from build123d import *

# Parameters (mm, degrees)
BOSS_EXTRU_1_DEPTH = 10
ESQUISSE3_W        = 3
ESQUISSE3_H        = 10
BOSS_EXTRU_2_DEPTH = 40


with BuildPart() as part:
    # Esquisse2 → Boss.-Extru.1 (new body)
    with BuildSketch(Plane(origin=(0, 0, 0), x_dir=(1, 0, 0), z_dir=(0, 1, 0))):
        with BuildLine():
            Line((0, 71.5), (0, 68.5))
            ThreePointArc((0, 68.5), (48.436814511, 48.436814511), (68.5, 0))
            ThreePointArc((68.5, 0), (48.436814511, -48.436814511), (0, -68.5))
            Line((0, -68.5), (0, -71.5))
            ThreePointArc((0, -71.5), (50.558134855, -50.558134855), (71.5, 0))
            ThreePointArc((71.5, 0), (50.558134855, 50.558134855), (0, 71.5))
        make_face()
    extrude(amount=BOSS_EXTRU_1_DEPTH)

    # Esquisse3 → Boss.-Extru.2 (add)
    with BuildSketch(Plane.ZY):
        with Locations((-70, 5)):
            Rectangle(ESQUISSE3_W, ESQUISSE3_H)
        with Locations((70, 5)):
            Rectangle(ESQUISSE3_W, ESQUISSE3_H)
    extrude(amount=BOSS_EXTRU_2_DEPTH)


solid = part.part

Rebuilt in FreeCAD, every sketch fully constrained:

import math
import FreeCAD as App
import Part
import Sketcher

doc = App.newDocument("Part")
body = doc.addObject("PartDesign::Body", "Body")

sketch1 = body.newObject("Sketcher::SketchObject", "Sketch")
sketch1.AttachmentSupport = (doc.getObject("XZ_Plane"), [""])
sketch1.MapMode = "FlatFace"
sketch1.addGeometry([
    Part.LineSegment(App.Vector(0, -71.5, 0), App.Vector(0, -68.5, 0)),
    Part.ArcOfCircle(Part.Circle(App.Vector(0, 0, 0), App.Vector(0, 0, 1), 68.5), math.radians(-90), math.radians(0)),
    Part.ArcOfCircle(Part.Circle(App.Vector(0, 0, 0), App.Vector(0, 0, 1), 68.5), math.radians(0), math.radians(90)),
    Part.LineSegment(App.Vector(0, 68.5, 0), App.Vector(0, 71.5, 0)),
    Part.ArcOfCircle(Part.Circle(App.Vector(0, 0, 0), App.Vector(0, 0, 1), 71.5), math.radians(0), math.radians(90)),
    Part.ArcOfCircle(Part.Circle(App.Vector(0, 0, 0), App.Vector(0, 0, 1), 71.5), math.radians(-90), math.radians(0)),
], False)
sketch1.addConstraint([
    Sketcher.Constraint("Coincident", 0, 2, 1, 1),
    Sketcher.Constraint("Tangent", 1, 2, 2, 1),
    Sketcher.Constraint("Coincident", 2, 2, 3, 1),
    Sketcher.Constraint("Coincident", 3, 2, 4, 2),
    Sketcher.Constraint("Tangent", 4, 1, 5, 2),
    Sketcher.Constraint("Coincident", 5, 1, 0, 1),
    Sketcher.Constraint("Vertical", 0),
    Sketcher.Constraint("Vertical", 3),
    Sketcher.Constraint("Coincident", 1, 3, -1, 1),
    Sketcher.Constraint("Coincident", 4, 3, -1, 1),
    Sketcher.Constraint("Equal", 1, 2),
    Sketcher.Constraint("Equal", 4, 5),
    Sketcher.Constraint("PointOnObject", 0, 2, -2),
    Sketcher.Constraint("PointOnObject", 1, 2, -1),
    Sketcher.Constraint("PointOnObject", 2, 2, -2),
    Sketcher.Constraint("PointOnObject", 4, 1, -1),
    Sketcher.Constraint("Radius", 1, 68.5),
    Sketcher.Constraint("Radius", 4, 71.5),
])
pad1 = body.newObject("PartDesign::Pad", "Pad")
pad1.Profile = sketch1
pad1.Length = 10
pad1.Reversed = True

sketch2 = body.newObject("Sketcher::SketchObject", "Sketch001")
sketch2.AttachmentSupport = (doc.getObject("YZ_Plane"), [""])
sketch2.MapMode = "FlatFace"
sketch2.addGeometry([
    Part.LineSegment(App.Vector(10, -71.5, 0), App.Vector(0, -71.5, 0)),
    Part.LineSegment(App.Vector(0, -71.5, 0), App.Vector(0, -68.5, 0)),
    Part.LineSegment(App.Vector(0, -68.5, 0), App.Vector(10, -68.5, 0)),
    Part.LineSegment(App.Vector(10, -68.5, 0), App.Vector(10, -71.5, 0)),
    Part.LineSegment(App.Vector(10, 68.5, 0), App.Vector(0, 68.5, 0)),
    Part.LineSegment(App.Vector(0, 68.5, 0), App.Vector(0, 71.5, 0)),
    Part.LineSegment(App.Vector(0, 71.5, 0), App.Vector(10, 71.5, 0)),
    Part.LineSegment(App.Vector(10, 71.5, 0), App.Vector(10, 68.5, 0)),
], False)
sketch2.addConstraint([
    Sketcher.Constraint("Coincident", 0, 2, 1, 1),
    Sketcher.Constraint("Coincident", 1, 2, 2, 1),
    Sketcher.Constraint("Coincident", 2, 2, 3, 1),
    Sketcher.Constraint("Coincident", 3, 2, 0, 1),
    Sketcher.Constraint("Coincident", 4, 2, 5, 1),
    Sketcher.Constraint("Coincident", 5, 2, 6, 1),
    Sketcher.Constraint("Coincident", 6, 2, 7, 1),
    Sketcher.Constraint("Coincident", 7, 2, 4, 1),
    Sketcher.Constraint("Horizontal", 0),
    Sketcher.Constraint("Vertical", 1),
    Sketcher.Constraint("Horizontal", 2),
    Sketcher.Constraint("Vertical", 3),
    Sketcher.Constraint("Horizontal", 4),
    Sketcher.Constraint("Vertical", 5),
    Sketcher.Constraint("Horizontal", 6),
    Sketcher.Constraint("Vertical", 7),
    Sketcher.Constraint("Symmetric", 1, 2, 4, 2, -1, 1),
    Sketcher.Constraint("Symmetric", 0, 2, 5, 2, -1),
    Sketcher.Constraint("Vertical", 3, 2, 6, 2),
    Sketcher.Constraint("DistanceX", 0, 2, 0, 1, 10.0),
    Sketcher.Constraint("DistanceY", 1, 1, 1, 2, 3.0),
    Sketcher.Constraint("DistanceY", 1, 2, 4, 2, 137.0),
])
pad2 = body.newObject("PartDesign::Pad", "Pad001")
pad2.Profile = sketch2
pad2.Length = 40
pad2.Reversed = True

doc.recompute()
